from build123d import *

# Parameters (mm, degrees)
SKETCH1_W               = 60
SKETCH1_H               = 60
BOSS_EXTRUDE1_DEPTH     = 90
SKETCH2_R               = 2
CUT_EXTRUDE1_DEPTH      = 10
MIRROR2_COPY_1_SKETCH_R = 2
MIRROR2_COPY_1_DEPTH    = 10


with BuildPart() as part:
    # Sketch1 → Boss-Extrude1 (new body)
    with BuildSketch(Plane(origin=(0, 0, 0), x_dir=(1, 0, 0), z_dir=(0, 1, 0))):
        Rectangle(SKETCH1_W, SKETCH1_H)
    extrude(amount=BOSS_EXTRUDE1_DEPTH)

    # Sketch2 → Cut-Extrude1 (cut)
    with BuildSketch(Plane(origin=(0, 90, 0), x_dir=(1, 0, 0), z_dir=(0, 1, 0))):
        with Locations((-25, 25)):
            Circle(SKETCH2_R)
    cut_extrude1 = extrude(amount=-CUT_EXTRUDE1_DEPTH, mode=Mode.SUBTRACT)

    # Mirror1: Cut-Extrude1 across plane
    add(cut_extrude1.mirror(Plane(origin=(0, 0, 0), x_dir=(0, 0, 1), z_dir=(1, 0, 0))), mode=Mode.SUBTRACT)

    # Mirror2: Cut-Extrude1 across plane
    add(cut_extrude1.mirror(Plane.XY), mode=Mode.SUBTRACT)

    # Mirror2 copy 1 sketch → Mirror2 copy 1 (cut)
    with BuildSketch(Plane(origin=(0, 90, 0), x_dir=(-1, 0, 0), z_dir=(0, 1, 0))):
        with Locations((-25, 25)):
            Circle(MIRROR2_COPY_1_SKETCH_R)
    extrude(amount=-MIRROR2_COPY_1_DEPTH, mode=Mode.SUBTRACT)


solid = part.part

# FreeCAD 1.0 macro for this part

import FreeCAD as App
import Part
import Sketcher

V = App.Vector
Q = App.Units.Quantity

doc = App.newDocument("Part")
body = doc.addObject("PartDesign::Body", "Body")

# Sketch on XZ plane
sketch1 = body.newObject("Sketcher::SketchObject", "Sketch")
sketch1.AttachmentSupport = (doc.getObject("XZ_Plane"), [""])
sketch1.MapMode = "FlatFace"
sketch1.addGeometry([
    Part.LineSegment(V(-30, -30, 0), V(-30, 30, 0)),
    Part.LineSegment(V(-30, 30, 0), V(30, 30, 0)),
    Part.LineSegment(V(30, 30, 0), V(30, -30, 0)),
    Part.LineSegment(V(30, -30, 0), V(-30, -30, 0)),
], False)
sketch1.addConstraint([
    Sketcher.Constraint("Coincident", 0, 2, 1, 1),
    Sketcher.Constraint("Coincident", 1, 2, 2, 1),
    Sketcher.Constraint("Coincident", 2, 2, 3, 1),
    Sketcher.Constraint("Coincident", 3, 2, 0, 1),
    Sketcher.Constraint("Vertical", 0),
    Sketcher.Constraint("Horizontal", 1),
    Sketcher.Constraint("Vertical", 2),
    Sketcher.Constraint("Horizontal", 3),
    Sketcher.Constraint("Symmetric", 0, 2, 2, 2, -1, 1),
    Sketcher.Constraint("Equal", 3, 0),
    Sketcher.Constraint("DistanceX", 1, 1, 1, 2, Q("60 mm")),
])
pad1 = body.newObject("PartDesign::Pad", "Pad")
pad1.Profile = sketch1
pad1.Length = 90
pad1.Reversed = True

# Sketch on XZ plane
sketch2 = body.newObject("Sketcher::SketchObject", "Sketch001")
sketch2.AttachmentSupport = (doc.getObject("XZ_Plane"), [""])
sketch2.MapMode = "FlatFace"
sketch2.AttachmentOffset = App.Placement(V(0, 0, -90), App.Rotation())
sketch2.addGeometry(Part.Circle(V(-25, -25, 0), V(0, 0, 1), 2), False)
sketch2.addConstraint([
    Sketcher.Constraint("Diameter", 0, Q("4 mm")),
    Sketcher.Constraint("DistanceX", 0, 3, -1, 1, Q("25 mm")),
    Sketcher.Constraint("DistanceY", 0, 3, -1, 1, Q("25 mm")),
])
pocket1 = body.newObject("PartDesign::Pocket", "Pocket")
pocket1.Profile = sketch2
pocket1.Length = 10
pocket1.Reversed = True
doc.recompute()

mirrored = body.newObject("PartDesign::Mirrored", "Mirrored")
mirrored.Originals = [pocket1]
mirrored.MirrorPlane = (doc.getObject("YZ_Plane"), [""])
body.Tip = mirrored
doc.recompute()

mirrored2 = body.newObject("PartDesign::Mirrored", "Mirrored001")
mirrored2.Originals = [pocket1]
mirrored2.MirrorPlane = (doc.getObject("XY_Plane"), [""])
body.Tip = mirrored2

# Sketch on XZ plane
sketch3 = body.newObject("Sketcher::SketchObject", "Sketch002")
sketch3.AttachmentSupport = (doc.getObject("XZ_Plane"), [""])
sketch3.MapMode = "FlatFace"
sketch3.AttachmentOffset = App.Placement(V(0, 0, -90), App.Rotation())
sketch3.addGeometry(Part.Circle(V(25, 25, 0), V(0, 0, 1), 2), False)
sketch3.addConstraint([
    Sketcher.Constraint("Diameter", 0, Q("4 mm")),
    Sketcher.Constraint("DistanceX", -1, 1, 0, 3, Q("25 mm")),
    Sketcher.Constraint("DistanceY", -1, 1, 0, 3, Q("25 mm")),
])
pocket2 = body.newObject("PartDesign::Pocket", "Pocket001")
pocket2.Profile = sketch3
pocket2.Length = 10
pocket2.Reversed = True

doc.recompute()
